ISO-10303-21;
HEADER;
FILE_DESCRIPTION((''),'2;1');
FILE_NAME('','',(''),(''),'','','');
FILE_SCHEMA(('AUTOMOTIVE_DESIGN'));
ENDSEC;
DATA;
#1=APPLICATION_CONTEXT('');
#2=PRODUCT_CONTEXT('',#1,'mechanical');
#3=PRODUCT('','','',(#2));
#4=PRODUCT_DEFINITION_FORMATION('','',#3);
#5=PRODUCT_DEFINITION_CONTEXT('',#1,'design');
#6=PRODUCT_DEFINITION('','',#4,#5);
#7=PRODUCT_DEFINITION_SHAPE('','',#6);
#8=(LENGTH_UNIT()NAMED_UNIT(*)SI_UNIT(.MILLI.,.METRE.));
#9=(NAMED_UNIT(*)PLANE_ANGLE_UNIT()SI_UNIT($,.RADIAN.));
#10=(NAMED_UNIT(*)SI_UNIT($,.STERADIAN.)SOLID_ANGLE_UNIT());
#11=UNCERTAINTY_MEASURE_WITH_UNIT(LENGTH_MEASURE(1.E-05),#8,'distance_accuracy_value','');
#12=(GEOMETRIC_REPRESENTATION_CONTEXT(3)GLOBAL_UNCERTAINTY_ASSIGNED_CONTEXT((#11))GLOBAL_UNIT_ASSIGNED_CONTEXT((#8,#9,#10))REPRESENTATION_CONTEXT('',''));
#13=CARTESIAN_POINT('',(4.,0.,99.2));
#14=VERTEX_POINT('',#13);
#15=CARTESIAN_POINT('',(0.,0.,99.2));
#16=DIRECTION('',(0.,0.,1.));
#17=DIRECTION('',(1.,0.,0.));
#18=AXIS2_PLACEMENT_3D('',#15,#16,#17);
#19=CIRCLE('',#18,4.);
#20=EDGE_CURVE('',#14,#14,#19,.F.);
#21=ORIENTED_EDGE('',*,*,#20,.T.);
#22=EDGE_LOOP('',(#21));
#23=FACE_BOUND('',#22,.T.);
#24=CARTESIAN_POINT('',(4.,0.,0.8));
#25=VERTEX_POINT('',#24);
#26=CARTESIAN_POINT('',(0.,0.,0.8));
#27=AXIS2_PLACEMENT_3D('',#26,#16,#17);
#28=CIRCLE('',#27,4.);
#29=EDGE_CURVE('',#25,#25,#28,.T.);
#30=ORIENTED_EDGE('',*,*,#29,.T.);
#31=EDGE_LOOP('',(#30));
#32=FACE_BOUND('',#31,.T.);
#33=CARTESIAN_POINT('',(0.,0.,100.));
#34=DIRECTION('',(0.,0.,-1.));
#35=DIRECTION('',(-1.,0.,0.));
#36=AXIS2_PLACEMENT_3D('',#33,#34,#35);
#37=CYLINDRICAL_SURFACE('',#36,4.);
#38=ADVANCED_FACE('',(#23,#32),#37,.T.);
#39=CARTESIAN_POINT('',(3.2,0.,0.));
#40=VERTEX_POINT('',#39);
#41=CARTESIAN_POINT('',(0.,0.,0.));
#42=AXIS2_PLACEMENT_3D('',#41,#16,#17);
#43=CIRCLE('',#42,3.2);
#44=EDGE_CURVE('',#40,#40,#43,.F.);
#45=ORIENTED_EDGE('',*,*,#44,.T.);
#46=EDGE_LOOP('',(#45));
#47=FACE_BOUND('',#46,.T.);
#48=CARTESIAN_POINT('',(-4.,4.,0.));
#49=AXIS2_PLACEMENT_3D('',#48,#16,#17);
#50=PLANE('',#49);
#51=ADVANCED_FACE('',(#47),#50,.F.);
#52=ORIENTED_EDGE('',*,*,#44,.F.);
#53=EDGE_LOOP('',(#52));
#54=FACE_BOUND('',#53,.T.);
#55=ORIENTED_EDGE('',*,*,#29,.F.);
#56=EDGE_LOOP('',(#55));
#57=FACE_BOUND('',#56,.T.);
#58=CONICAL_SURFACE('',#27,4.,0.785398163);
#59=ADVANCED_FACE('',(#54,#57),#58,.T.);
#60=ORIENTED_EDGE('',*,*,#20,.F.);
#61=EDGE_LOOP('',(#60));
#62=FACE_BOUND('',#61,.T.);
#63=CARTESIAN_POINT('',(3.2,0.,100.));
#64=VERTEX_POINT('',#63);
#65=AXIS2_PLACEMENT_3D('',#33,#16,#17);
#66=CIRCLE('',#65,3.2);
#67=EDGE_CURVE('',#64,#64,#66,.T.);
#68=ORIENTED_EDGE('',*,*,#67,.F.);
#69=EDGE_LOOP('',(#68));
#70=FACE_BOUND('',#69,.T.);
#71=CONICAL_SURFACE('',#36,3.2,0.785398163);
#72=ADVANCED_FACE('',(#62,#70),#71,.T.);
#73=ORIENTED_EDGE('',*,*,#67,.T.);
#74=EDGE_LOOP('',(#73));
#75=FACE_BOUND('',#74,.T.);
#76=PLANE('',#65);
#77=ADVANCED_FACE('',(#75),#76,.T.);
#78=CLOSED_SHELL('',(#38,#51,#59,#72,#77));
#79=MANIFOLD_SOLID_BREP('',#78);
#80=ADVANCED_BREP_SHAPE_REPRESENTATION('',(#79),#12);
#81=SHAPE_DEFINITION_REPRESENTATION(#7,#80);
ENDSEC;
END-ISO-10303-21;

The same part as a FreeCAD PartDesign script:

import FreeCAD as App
import Part
import Sketcher
from FreeCAD import Vector


def edges_at(feature, points):
    """Names of the edges that pass closest to the given points."""
    edges = feature.Shape.Edges
    near = lambda p: min(range(len(edges)), key=lambda i: edges[i].distToShape(Part.Vertex(*p))[0])
    return sorted({f"Edge{near(p) + 1}" for p in points})

doc = App.newDocument("Part")
params = doc.addObject("Spreadsheet::Sheet", "Params")
for row, (alias, value) in enumerate([
    ("sketch1_diameter", "8 mm"),
    ("pad1_length", "200 mm"),
    ("chamfer_size", "0.8 mm"),
    ("chamfer2_size", "0.8 mm"),
], start=1):
    params.set(f"A{row}", alias)
    params.set(f"B{row}", "=" + value)
    params.setAlias(f"B{row}", alias)

body = doc.addObject("PartDesign::Body", "Body")

# Sketch on XY plane
sketch1 = doc.addObject("Sketcher::SketchObject", "Sketch")
body.addObject(sketch1)
sketch1.AttachmentSupport = (doc.XY_Plane, [""])
sketch1.MapMode = "FlatFace"
sketch1.addGeometry(Part.Circle(Vector(0, 0, 0), Vector(0, 0, 1), 4), False)
sketch1.addConstraint(Sketcher.Constraint("Coincident", 0, 3, -1, 1))
sketch1.addConstraint(Sketcher.Constraint("Diameter", 0, 8.0))
sketch1.setExpression("Constraints[1]", "Params.sketch1_diameter")
pad1 = doc.addObject("PartDesign::Pad", "Pad")
body.addObject(pad1)
pad1.Profile = sketch1
pad1.setExpression("Length", "Params.pad1_length")
pad1.Midplane = True
doc.recompute()

chamfer = doc.addObject("PartDesign::Chamfer", "Chamfer")
body.addObject(chamfer)
chamfer.Base = (pad1, edges_at(pad1, [(-4, 0, -100), (-4, 0, 100)]))
chamfer.setExpression("Size", "Params.chamfer_size")

# Sketch on YZ plane
sketch2 = doc.addObject("Sketcher::SketchObject", "Sketch001")
body.addObject(sketch2)
sketch2.AttachmentSupport = (doc.YZ_Plane, [""])
sketch2.MapMode = "FlatFace"
sketch2.addGeometry(Part.LineSegment(Vector(4, 0, 0), Vector(-5, 0, 0)), False)
sketch2.addGeometry(Part.LineSegment(Vector(-5, 0, 0), Vector(-5, -104, 0)), False)
sketch2.addGeometry(Part.LineSegment(Vector(-5, -104, 0), Vector(4, -104, 0)), False)
sketch2.addGeometry(Part.LineSegment(Vector(4, -104, 0), Vector(4, 0, 0)), False)
sketch2.addConstraint(Sketcher.Constraint("Coincident", 0, 2, 1, 1))
sketch2.addConstraint(Sketcher.Constraint("Coincident", 1, 2, 2, 1))
sketch2.addConstraint(Sketcher.Constraint("Coincident", 2, 2, 3, 1))
sketch2.addConstraint(Sketcher.Constraint("Coincident", 3, 2, 0, 1))
sketch2.addConstraint(Sketcher.Constraint("Horizontal", 0))
sketch2.addConstraint(Sketcher.Constraint("Vertical", 1))
sketch2.addConstraint(Sketcher.Constraint("Horizontal", 2))
sketch2.addConstraint(Sketcher.Constraint("Vertical", 3))
sketch2.addConstraint(Sketcher.Constraint("PointOnObject", 0, 2, -1))
sketch2.addConstraint(Sketcher.Constraint("DistanceX", -1, 1, 2, 2, 4.0))
sketch2.addConstraint(Sketcher.Constraint("DistanceX", 0, 2, 0, 1, 8.719679))
sketch2.addConstraint(Sketcher.Constraint("DistanceY", 1, 2, 1, 1, 103.982491))
pocket1 = doc.addObject("PartDesign::Pocket", "Pocket")
body.addObject(pocket1)
pocket1.Profile = sketch2
pocket1.Type = "ThroughAll"
pocket1.Midplane = True
doc.recompute()

chamfer2 = doc.addObject("PartDesign::Chamfer", "Chamfer001")
body.addObject(chamfer2)
chamfer2.Base = (pocket1, edges_at(pocket1, [(-4, 0, 0)]))
chamfer2.setExpression("Size", "Params.chamfer2_size")

doc.recompute()
